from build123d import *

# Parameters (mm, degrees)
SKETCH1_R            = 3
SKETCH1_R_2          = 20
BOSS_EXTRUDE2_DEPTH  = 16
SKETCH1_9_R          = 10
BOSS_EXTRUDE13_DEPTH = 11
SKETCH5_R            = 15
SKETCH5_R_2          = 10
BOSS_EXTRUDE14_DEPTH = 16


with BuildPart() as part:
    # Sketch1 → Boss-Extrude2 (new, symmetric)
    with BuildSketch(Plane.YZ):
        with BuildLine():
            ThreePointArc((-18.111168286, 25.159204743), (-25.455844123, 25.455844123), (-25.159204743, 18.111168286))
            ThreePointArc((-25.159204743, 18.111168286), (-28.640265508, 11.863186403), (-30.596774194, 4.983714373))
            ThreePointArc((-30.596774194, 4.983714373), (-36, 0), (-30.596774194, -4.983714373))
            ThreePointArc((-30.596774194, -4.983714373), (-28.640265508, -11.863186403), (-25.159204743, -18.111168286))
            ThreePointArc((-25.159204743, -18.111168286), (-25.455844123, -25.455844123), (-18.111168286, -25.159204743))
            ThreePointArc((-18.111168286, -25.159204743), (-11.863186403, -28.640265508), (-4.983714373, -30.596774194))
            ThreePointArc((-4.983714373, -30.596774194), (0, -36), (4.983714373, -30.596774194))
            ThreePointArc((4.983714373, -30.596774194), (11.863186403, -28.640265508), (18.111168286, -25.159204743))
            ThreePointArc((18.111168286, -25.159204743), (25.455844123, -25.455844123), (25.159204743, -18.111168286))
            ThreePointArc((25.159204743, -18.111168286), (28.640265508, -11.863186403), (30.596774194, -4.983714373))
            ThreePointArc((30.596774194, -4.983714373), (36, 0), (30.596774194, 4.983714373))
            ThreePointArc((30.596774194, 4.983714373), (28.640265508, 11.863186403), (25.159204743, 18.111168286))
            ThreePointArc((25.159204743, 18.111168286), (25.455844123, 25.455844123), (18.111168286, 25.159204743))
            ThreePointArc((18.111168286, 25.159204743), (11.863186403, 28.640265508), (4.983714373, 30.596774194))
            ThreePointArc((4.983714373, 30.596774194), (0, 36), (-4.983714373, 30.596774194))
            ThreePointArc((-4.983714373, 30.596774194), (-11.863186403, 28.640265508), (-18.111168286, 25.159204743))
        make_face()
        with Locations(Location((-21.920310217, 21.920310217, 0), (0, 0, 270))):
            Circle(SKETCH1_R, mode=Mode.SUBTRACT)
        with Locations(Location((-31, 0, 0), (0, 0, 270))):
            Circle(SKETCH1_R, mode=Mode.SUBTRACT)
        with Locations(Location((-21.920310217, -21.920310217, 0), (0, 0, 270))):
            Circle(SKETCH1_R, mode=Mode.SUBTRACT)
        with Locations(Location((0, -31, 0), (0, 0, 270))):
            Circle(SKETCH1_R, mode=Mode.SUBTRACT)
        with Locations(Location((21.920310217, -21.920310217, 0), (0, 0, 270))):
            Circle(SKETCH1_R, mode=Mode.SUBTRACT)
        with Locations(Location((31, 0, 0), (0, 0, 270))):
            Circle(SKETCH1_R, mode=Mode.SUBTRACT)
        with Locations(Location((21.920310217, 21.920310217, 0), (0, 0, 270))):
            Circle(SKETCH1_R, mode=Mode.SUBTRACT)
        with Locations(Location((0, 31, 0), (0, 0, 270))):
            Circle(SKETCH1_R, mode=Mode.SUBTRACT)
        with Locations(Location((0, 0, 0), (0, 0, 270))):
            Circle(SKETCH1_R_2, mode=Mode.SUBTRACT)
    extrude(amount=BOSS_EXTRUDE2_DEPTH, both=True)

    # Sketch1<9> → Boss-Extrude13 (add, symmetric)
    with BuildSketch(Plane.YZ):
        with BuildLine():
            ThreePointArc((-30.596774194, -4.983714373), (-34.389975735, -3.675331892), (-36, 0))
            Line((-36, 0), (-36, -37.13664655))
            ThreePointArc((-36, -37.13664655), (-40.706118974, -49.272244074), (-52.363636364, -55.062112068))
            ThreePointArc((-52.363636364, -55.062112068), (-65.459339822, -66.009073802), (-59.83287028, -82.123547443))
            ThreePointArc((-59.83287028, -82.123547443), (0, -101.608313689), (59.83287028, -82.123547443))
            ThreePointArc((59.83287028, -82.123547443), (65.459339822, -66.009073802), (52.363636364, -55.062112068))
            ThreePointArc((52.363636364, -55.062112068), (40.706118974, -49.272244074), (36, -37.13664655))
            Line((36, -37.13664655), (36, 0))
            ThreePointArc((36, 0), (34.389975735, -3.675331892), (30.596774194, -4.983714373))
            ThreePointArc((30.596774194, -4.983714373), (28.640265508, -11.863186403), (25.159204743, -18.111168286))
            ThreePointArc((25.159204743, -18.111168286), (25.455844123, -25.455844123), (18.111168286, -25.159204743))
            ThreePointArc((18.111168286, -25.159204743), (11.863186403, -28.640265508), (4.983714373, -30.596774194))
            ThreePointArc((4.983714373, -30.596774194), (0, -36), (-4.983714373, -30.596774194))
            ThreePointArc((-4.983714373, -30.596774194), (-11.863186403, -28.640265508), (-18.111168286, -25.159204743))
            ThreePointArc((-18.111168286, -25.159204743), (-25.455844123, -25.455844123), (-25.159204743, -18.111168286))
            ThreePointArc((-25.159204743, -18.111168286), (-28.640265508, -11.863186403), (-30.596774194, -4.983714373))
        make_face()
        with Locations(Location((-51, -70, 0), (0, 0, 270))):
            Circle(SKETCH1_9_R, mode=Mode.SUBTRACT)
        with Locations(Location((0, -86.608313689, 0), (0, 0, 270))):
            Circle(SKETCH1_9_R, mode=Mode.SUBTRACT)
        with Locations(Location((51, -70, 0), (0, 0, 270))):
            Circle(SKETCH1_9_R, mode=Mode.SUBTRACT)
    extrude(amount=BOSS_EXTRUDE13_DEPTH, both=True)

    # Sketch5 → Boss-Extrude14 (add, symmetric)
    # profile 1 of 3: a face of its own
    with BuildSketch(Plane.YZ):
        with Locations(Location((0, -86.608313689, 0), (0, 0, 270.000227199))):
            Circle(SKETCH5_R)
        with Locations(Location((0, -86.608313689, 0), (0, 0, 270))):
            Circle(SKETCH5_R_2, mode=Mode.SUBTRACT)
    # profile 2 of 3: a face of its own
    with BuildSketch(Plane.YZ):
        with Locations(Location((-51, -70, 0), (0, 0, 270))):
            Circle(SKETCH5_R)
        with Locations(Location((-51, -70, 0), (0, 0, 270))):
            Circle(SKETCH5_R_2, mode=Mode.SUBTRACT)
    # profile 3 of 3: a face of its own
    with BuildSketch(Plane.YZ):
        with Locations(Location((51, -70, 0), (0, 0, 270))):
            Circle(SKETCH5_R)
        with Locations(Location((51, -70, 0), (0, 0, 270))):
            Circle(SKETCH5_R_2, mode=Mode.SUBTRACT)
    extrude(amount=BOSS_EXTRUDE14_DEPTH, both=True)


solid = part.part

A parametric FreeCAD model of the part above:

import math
import FreeCAD as App
import Part
import Sketcher

V = App.Vector
Q = App.Units.Quantity

doc = App.newDocument("Part")
body = doc.addObject("PartDesign::Body", "Body")

sketch1 = body.newObject("Sketcher::SketchObject", "Sketch")
sketch1.AttachmentSupport = (doc.getObject("YZ_Plane"), [""])
sketch1.MapMode = "FlatFace"
sketch1.addGeometry([
    Part.ArcOfCircle(Part.Circle(V(-21.92031, 21.92031, 0), V(0, 0, 1), 5), math.radians(40.374349), math.radians(229.625651)),
    Part.ArcOfCircle(Part.Circle(V(0, 0, 0), V(0, 0, 1), 31), math.radians(144.251301), math.radians(170.748699)),
    Part.ArcOfCircle(Part.Circle(V(-31, 0, 0), V(0, 0, 1), 5), math.radians(85.374349), math.radians(274.625651)),
    Part.ArcOfCircle(Part.Circle(V(0, 0, 0), V(0, 0, 1), 31), math.radians(-170.748699), math.radians(-144.251301)),
    Part.ArcOfCircle(Part.Circle(V(-21.92031, -21.92031, 0), V(0, 0, 1), 5), math.radians(130.374349), math.radians(319.625651)),
    Part.ArcOfCircle(Part.Circle(V(0, 0, 0), V(0, 0, 1), 31), math.radians(-125.748699), math.radians(-99.251301)),
    Part.ArcOfCircle(Part.Circle(V(0, -31, 0), V(0, 0, 1), 5), math.radians(175.374349), math.radians(364.625651)),
    Part.ArcOfCircle(Part.Circle(V(0, 0, 0), V(0, 0, 1), 31), math.radians(-80.748699), math.radians(-54.251301)),
    Part.ArcOfCircle(Part.Circle(V(21.92031, -21.92031, 0), V(0, 0, 1), 5), math.radians(-139.625651), math.radians(49.625651)),
    Part.ArcOfCircle(Part.Circle(V(0, 0, 0), V(0, 0, 1), 31), math.radians(-35.748699), math.radians(-9.251301)),
    Part.ArcOfCircle(Part.Circle(V(31, 0, 0), V(0, 0, 1), 5), math.radians(-94.625651), math.radians(94.625651)),
    Part.ArcOfCircle(Part.Circle(V(0, 0, 0), V(0, 0, 1), 31), math.radians(9.251301), math.radians(35.748699)),
    Part.ArcOfCircle(Part.Circle(V(21.92031, 21.92031, 0), V(0, 0, 1), 5), math.radians(-49.625651), math.radians(139.625651)),
    Part.ArcOfCircle(Part.Circle(V(0, 0, 0), V(0, 0, 1), 31), math.radians(54.251301), math.radians(80.748699)),
    Part.ArcOfCircle(Part.Circle(V(0, 31, 0), V(0, 0, 1), 5), math.radians(-4.625651), math.radians(184.625651)),
    Part.ArcOfCircle(Part.Circle(V(0, 0, 0), V(0, 0, 1), 31), math.radians(99.251301), math.radians(125.748699)),
    Part.Circle(V(-21.92031, -21.92031, 0), V(0, 0, 1), 3),
    Part.Circle(V(0, -31, 0), V(0, 0, 1), 3),
    Part.Circle(V(21.92031, -21.92031, 0), V(0, 0, 1), 3),
    Part.Circle(V(-31, 0, 0), V(0, 0, 1), 3),
    Part.Circle(V(-21.92031, 21.92031, 0), V(0, 0, 1), 3),
    Part.Circle(V(0, 31, 0), V(0, 0, 1), 3),
    Part.Circle(V(0, 0, 0), V(0, 0, 1), 20),
    Part.Circle(V(31, 0, 0), V(0, 0, 1), 3),
    Part.Circle(V(21.92031, 21.92031, 0), V(0, 0, 1), 3),
], False)
sketch1.addConstraint([
    Sketcher.Constraint("Coincident", 0, 2, 1, 1),
    Sketcher.Constraint("Coincident", 1, 2, 2, 1),
    Sketcher.Constraint("Coincident", 2, 2, 3, 1),
    Sketcher.Constraint("Coincident", 3, 2, 4, 1),
    Sketcher.Constraint("Coincident", 4, 2, 5, 1),
    Sketcher.Constraint("Coincident", 5, 2, 6, 1),
    Sketcher.Constraint("Coincident", 6, 2, 7, 1),
    Sketcher.Constraint("Coincident", 7, 2, 8, 1),
    Sketcher.Constraint("Coincident", 8, 2, 9, 1),
    Sketcher.Constraint("Coincident", 9, 2, 10, 1),
    Sketcher.Constraint("Coincident", 10, 2, 11, 1),
    Sketcher.Constraint("Coincident", 11, 2, 12, 1),
    Sketcher.Constraint("Coincident", 12, 2, 13, 1),
    Sketcher.Constraint("Coincident", 13, 2, 14, 1),
    Sketcher.Constraint("Coincident", 14, 2, 15, 1),
    Sketcher.Constraint("Coincident", 15, 2, 0, 1),
    Sketcher.Constraint("Coincident", 1, 3, -1, 1),
    Sketcher.Constraint("Coincident", 3, 3, -1, 1),
    Sketcher.Constraint("Coincident", 5, 3, -1, 1),
    Sketcher.Constraint("Coincident", 7, 3, -1, 1),
    Sketcher.Constraint("Coincident", 9, 3, -1, 1),
    Sketcher.Constraint("Coincident", 11, 3, -1, 1),
    Sketcher.Constraint("Coincident", 13, 3, -1, 1),
    Sketcher.Constraint("Coincident", 15, 3, -1, 1),
    Sketcher.Constraint("Coincident", 22, 3, -1, 1),
    Sketcher.Constraint("Coincident", 16, 3, 4, 3),
    Sketcher.Constraint("Coincident", 17, 3, 6, 3),
    Sketcher.Constraint("Coincident", 18, 3, 8, 3),
    Sketcher.Constraint("Coincident", 19, 3, 2, 3),
    Sketcher.Constraint("Coincident", 20, 3, 0, 3),
    Sketcher.Constraint("Coincident", 21, 3, 14, 3),
    Sketcher.Constraint("Coincident", 23, 3, 10, 3),
    Sketcher.Constraint("Coincident", 24, 3, 12, 3),
    Sketcher.Constraint("Equal", 0, 2),
    Sketcher.Constraint("Equal", 1, 3),
    Sketcher.Constraint("Equal", 2, 4),
    Sketcher.Constraint("Equal", 3, 5),
    Sketcher.Constraint("Equal", 4, 6),
    Sketcher.Constraint("Equal", 5, 7),
    Sketcher.Constraint("Equal", 6, 8),
    Sketcher.Constraint("Equal", 7, 9),
    Sketcher.Constraint("Equal", 8, 10),
    Sketcher.Constraint("Equal", 9, 11),
    Sketcher.Constraint("Equal", 10, 12),
    Sketcher.Constraint("Equal", 11, 13),
    Sketcher.Constraint("Equal", 12, 14),
    Sketcher.Constraint("Equal", 13, 15),
    Sketcher.Constraint("Equal", 16, 17),
    Sketcher.Constraint("Equal", 17, 18),
    Sketcher.Constraint("Equal", 18, 19),
    Sketcher.Constraint("Equal", 19, 20),
    Sketcher.Constraint("Equal", 20, 21),
    Sketcher.Constraint("Equal", 21, 23),
    Sketcher.Constraint("Equal", 23, 24),
    Sketcher.Constraint("Symmetric", 0, 3, 8, 3, -1, 1),
    Sketcher.Constraint("Symmetric", 2, 3, 10, 3, -1, 1),
    Sketcher.Constraint("Symmetric", 4, 3, 12, 3, -1, 1),
    Sketcher.Constraint("Symmetric", 6, 3, 14, 3, -1, 1),
    Sketcher.Constraint("Symmetric", 4, 3, 8, 3, -2),
    Sketcher.Constraint("PointOnObject", 2, 3, -1),
    Sketcher.Constraint("PointOnObject", 6, 3, -2),
    Sketcher.Constraint("Diameter", 16, Q("6 mm")),
    Sketcher.Constraint("Diameter", 22, Q("40 mm")),
    Sketcher.Constraint("Radius", 0, Q("5 mm")),
    Sketcher.Constraint("Radius", 1, Q("31 mm")),
    Sketcher.Constraint("DistanceX", 2, 3, -1, 1, Q("31 mm")),
    Sketcher.Constraint("DistanceY", 6, 3, -1, 1, Q("31 mm")),
    Sketcher.Constraint("DistanceX", 0, 3, -1, 1, Q("21.92031 mm")),
    Sketcher.Constraint("DistanceY", -1, 1, 0, 3, Q("21.92031 mm")),
])
pad1 = body.newObject("PartDesign::Pad", "Pad")
pad1.Profile = sketch1
pad1.Length = 32
pad1.Midplane = True

sketch2 = body.newObject("Sketcher::SketchObject", "Sketch001")
sketch2.AttachmentSupport = (doc.getObject("YZ_Plane"), [""])
sketch2.MapMode = "FlatFace"
sketch2.addGeometry([
    Part.ArcOfCircle(Part.Circle(V(-31, 0, 0), V(0, 0, 1), 5), math.radians(180), math.radians(274.625651)),
    Part.LineSegment(V(-36, 0, 0), V(-36, -37.136647, 0)),
    Part.ArcOfCircle(Part.Circle(V(-54, -37.136647, 0), V(0, 0, 1), 18), math.radians(-84.784091), math.radians(0)),
    Part.ArcOfCircle(Part.Circle(V(-51, -70, 0), V(0, 0, 1), 15), math.radians(95.215909), math.radians(233.923988)),
    Part.ArcOfCircle(Part.Circle(V(0, 0, 0), V(0, 0, 1), 101.608314), math.radians(-126.076012), math.radians(-53.923988)),
    Part.ArcOfCircle(Part.Circle(V(51, -70, 0), V(0, 0, 1), 15), math.radians(-53.923988), math.radians(84.784091)),
    Part.ArcOfCircle(Part.Circle(V(54, -37.136647, 0), V(0, 0, 1), 18), math.radians(180), math.radians(264.784091)),
    Part.LineSegment(V(36, -37.136647, 0), V(36, 0, 0)),
    Part.ArcOfCircle(Part.Circle(V(31, 0, 0), V(0, 0, 1), 5), math.radians(-94.625651), math.radians(0)),
    Part.ArcOfCircle(Part.Circle(V(0, 0, 0), V(0, 0, 1), 31), math.radians(-35.748699), math.radians(-9.251301)),
    Part.ArcOfCircle(Part.Circle(V(21.92031, -21.92031, 0), V(0, 0, 1), 5), math.radians(-139.625651), math.radians(49.625651)),
    Part.ArcOfCircle(Part.Circle(V(0, 0, 0), V(0, 0, 1), 31), math.radians(-80.748699), math.radians(-54.251301)),
    Part.ArcOfCircle(Part.Circle(V(0, -31, 0), V(0, 0, 1), 5), math.radians(175.374349), math.radians(364.625651)),
    Part.ArcOfCircle(Part.Circle(V(0, 0, 0), V(0, 0, 1), 31), math.radians(-125.748699), math.radians(-99.251301)),
    Part.ArcOfCircle(Part.Circle(V(-21.92031, -21.92031, 0), V(0, 0, 1), 5), math.radians(130.374349), math.radians(319.625651)),
    Part.ArcOfCircle(Part.Circle(V(0, 0, 0), V(0, 0, 1), 31), math.radians(-170.748699), math.radians(-144.251301)),
    Part.Circle(V(0, -86.608314, 0), V(0, 0, 1), 10),
    Part.Circle(V(-51, -70, 0), V(0, 0, 1), 10),
    Part.Circle(V(51, -70, 0), V(0, 0, 1), 10),
], False)
sketch2.addConstraint([
    Sketcher.Constraint("Tangent", 0, 1, 1, 1),
    Sketcher.Constraint("Tangent", 1, 2, 2, 2),
    Sketcher.Constraint("Tangent", 2, 1, 3, 1),
    Sketcher.Constraint("Tangent", 3, 2, 4, 1),
    Sketcher.Constraint("Tangent", 4, 2, 5, 1),
    Sketcher.Constraint("Tangent", 5, 2, 6, 2),
    Sketcher.Constraint("Tangent", 6, 1, 7, 1),
    Sketcher.Constraint("Tangent", 7, 2, 8, 2),
    Sketcher.Constraint("Coincident", 8, 1, 9, 2),
    Sketcher.Constraint("Coincident", 9, 1, 10, 2),
    Sketcher.Constraint("Coincident", 10, 1, 11, 2),
    Sketcher.Constraint("Coincident", 11, 1, 12, 2),
    Sketcher.Constraint("Coincident", 12, 1, 13, 2),
    Sketcher.Constraint("Coincident", 13, 1, 14, 2),
    Sketcher.Constraint("Coincident", 14, 1, 15, 2),
    Sketcher.Constraint("Coincident", 15, 1, 0, 2),
    Sketcher.Constraint("Vertical", 1),
    Sketcher.Constraint("Vertical", 7),
    Sketcher.Constraint("Coincident", 4, 3, -1, 1),
    Sketcher.Constraint("Coincident", 9, 3, -1, 1),
    Sketcher.Constraint("Coincident", 11, 3, -1, 1),
    Sketcher.Constraint("Coincident", 13, 3, -1, 1),
    Sketcher.Constraint("Coincident", 15, 3, -1, 1),
    Sketcher.Constraint("Coincident", 17, 3, 3, 3),
    Sketcher.Constraint("Coincident", 18, 3, 5, 3),
    Sketcher.Constraint("Equal", 3, 5),
    Sketcher.Constraint("Equal", 2, 6),
    Sketcher.Constraint("Equal", 0, 8),
    Sketcher.Constraint("Equal", 8, 10),
    Sketcher.Constraint("Equal", 9, 11),
    Sketcher.Constraint("Equal", 10, 12),
    Sketcher.Constraint("Equal", 11, 13),
    Sketcher.Constraint("Equal", 12, 14),
    Sketcher.Constraint("Equal", 13, 15),
    Sketcher.Constraint("Equal", 16, 17),
    Sketcher.Constraint("Equal", 17, 18),
    Sketcher.Constraint("Symmetric", 0, 3, 8, 3, -1, 1),
    Sketcher.Constraint("Symmetric", 10, 3, 14, 3, -2),
    Sketcher.Constraint("PointOnObject", 0, 3, -1),
    Sketcher.Constraint("PointOnObject", 12, 3, -2),
    Sketcher.Constraint("PointOnObject", 16, 3, -2),
    Sketcher.Constraint("Horizontal", 3, 3, 5, 3),
    Sketcher.Constraint("Diameter", 16, Q("20 mm")),
    Sketcher.Constraint("Radius", 0, Q("5 mm")),
    Sketcher.Constraint("Radius", 2, Q("18 mm")),
    Sketcher.Constraint("Radius", 3, Q("15 mm")),
    Sketcher.Constraint("Radius", 9, Q("31 mm")),
    Sketcher.Constraint("DistanceX", 0, 3, -1, 1, Q("31 mm")),
    Sketcher.Constraint("DistanceX", 3, 3, -1, 1, Q("51 mm")),
    Sketcher.Constraint("DistanceY", 3, 3, -1, 1, Q("70 mm")),
    Sketcher.Constraint("DistanceY", 12, 3, -1, 1, Q("31 mm")),
    Sketcher.Constraint("DistanceY", 2, 1, 14, 3, Q("33.141802 mm")),
    Sketcher.Constraint("DistanceX", -1, 1, 10, 3, Q("21.92031 mm")),
    Sketcher.Constraint("DistanceY", 16, 3, -1, 1, Q("86.608314 mm")),
])
pad2 = body.newObject("PartDesign::Pad", "Pad001")
pad2.Profile = sketch2
pad2.Length = 22
pad2.Midplane = True

sketch3 = body.newObject("Sketcher::SketchObject", "Sketch002")
sketch3.AttachmentSupport = (doc.getObject("YZ_Plane"), [""])
sketch3.MapMode = "FlatFace"
sketch3.addGeometry([
    Part.Circle(V(0, -86.608314, 0), V(0, 0, 1), 15),
    Part.Circle(V(0, -86.608314, 0), V(0, 0, 1), 10),
    Part.Circle(V(-51, -70, 0), V(0, 0, 1), 15),
    Part.Circle(V(-51, -70, 0), V(0, 0, 1), 10),
    Part.Circle(V(51, -70, 0), V(0, 0, 1), 15),
    Part.Circle(V(51, -70, 0), V(0, 0, 1), 10),
], False)
sketch3.addConstraint([
    Sketcher.Constraint("Coincident", 1, 3, 0, 3),
    Sketcher.Constraint("Coincident", 3, 3, 2, 3),
    Sketcher.Constraint("Coincident", 5, 3, 4, 3),
    Sketcher.Constraint("Equal", 0, 2),
    Sketcher.Constraint("Equal", 1, 3),
    Sketcher.Constraint("Equal", 2, 4),
    Sketcher.Constraint("Equal", 3, 5),
    Sketcher.Constraint("Symmetric", 2, 3, 4, 3, -2),
    Sketcher.Constraint("PointOnObject", 0, 3, -2),
    Sketcher.Constraint("Diameter", 0, Q("30 mm")),
    Sketcher.Constraint("Diameter", 1, Q("20 mm")),
    Sketcher.Constraint("DistanceX", 2, 3, -1, 1, Q("51 mm")),
    Sketcher.Constraint("DistanceY", 2, 3, -1, 1, Q("70 mm")),
    Sketcher.Constraint("DistanceY", 0, 3, -1, 1, Q("86.608314 mm")),
])
pad3 = body.newObject("PartDesign::Pad", "Pad002")
pad3.Profile = sketch3
pad3.Length = 32
pad3.Midplane = True

doc.recompute()
